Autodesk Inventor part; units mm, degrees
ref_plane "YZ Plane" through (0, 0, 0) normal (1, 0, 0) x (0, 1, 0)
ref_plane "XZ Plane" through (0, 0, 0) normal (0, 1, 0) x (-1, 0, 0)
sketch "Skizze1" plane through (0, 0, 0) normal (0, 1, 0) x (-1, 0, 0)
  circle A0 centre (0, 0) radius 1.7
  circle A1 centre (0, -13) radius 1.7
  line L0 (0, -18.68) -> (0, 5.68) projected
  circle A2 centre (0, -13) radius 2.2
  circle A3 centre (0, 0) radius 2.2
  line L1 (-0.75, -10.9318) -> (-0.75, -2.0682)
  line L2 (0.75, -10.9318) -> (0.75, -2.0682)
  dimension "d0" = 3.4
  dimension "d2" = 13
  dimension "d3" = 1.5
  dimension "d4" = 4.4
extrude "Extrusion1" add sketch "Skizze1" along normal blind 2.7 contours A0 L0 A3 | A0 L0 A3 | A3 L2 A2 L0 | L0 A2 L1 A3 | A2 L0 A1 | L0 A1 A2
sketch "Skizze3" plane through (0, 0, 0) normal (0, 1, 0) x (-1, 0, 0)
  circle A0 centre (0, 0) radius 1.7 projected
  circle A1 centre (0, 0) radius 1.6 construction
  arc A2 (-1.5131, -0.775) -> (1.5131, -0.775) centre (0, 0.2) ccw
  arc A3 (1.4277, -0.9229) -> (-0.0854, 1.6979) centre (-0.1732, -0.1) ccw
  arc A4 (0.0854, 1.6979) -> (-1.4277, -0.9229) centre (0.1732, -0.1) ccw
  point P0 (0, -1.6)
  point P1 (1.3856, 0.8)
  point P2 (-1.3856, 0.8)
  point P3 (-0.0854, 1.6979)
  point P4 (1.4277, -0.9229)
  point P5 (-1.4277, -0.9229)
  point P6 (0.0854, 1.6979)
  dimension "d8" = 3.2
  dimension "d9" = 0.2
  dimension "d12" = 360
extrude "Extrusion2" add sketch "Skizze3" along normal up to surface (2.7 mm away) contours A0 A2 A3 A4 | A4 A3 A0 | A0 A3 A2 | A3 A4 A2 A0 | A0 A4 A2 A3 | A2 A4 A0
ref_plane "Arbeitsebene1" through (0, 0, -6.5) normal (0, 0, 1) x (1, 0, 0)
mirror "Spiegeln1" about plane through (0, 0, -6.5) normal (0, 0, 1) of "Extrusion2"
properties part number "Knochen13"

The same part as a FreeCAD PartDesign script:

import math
import FreeCAD as App
import Part
import Sketcher

V = App.Vector

doc = App.newDocument("Part")
body = doc.addObject("PartDesign::Body", "Body")

# Sketch on XZ plane
sketch1 = body.newObject("Sketcher::SketchObject", "Sketch")
sketch1.AttachmentSupport = (doc.getObject("XZ_Plane"), [""])
sketch1.MapMode = "FlatFace"
sketch1.addGeometry([
    Part.LineSegment(V(0.8, -2.1, 0), V(0.8, -10.9, 0)),  # 0
    Part.ArcOfCircle(Part.Circle(V(0, -13, 0), V(0, 0, 1), 2.2), math.radians(110), math.radians(430)),  # 1
    Part.LineSegment(V(-0.8, -10.9, 0), V(-0.8, -2.1, 0)),  # 2
    Part.ArcOfCircle(Part.Circle(V(0, 0, 0), V(0, 0, 1), 2.2), math.radians(-70), math.radians(250)),  # 3
    Part.Circle(V(0, 0, 0), V(0, 0, 1), 1.7),  # 4
    Part.Circle(V(0, -13, 0), V(0, 0, 1), 1.7),  # 5
], False)
sketch1.addConstraint([
    Sketcher.Constraint("Coincident", 0, 2, 1, 2),
    Sketcher.Constraint("Coincident", 1, 1, 2, 1),
    Sketcher.Constraint("Coincident", 2, 2, 3, 2),
    Sketcher.Constraint("Coincident", 3, 1, 0, 1),
    Sketcher.Constraint("Vertical", 0),
    Sketcher.Constraint("Vertical", 2),
    Sketcher.Constraint("Coincident", 3, 3, -1, 1),
    Sketcher.Constraint("Coincident", 4, 3, -1, 1),
    Sketcher.Constraint("Coincident", 5, 3, 1, 3),
    Sketcher.Constraint("Equal", 1, 3),
    Sketcher.Constraint("Equal", 4, 5),
    Sketcher.Constraint("Symmetric", 0, 2, 1, 1, -2),
    Sketcher.Constraint("Diameter", 4, 3.4),
    Sketcher.Constraint("Radius", 1, 2.2),
    Sketcher.Constraint("DistanceY", 1, 3, -1, 1, 13.0),
    Sketcher.Constraint("DistanceX", 1, 1, 0, 2, 1.5),
])
pad1 = body.newObject("PartDesign::Pad", "Pad")
pad1.Profile = sketch1
pad1.Length = 2.7
pad1.Reversed = True

# Sketch on XZ plane
sketch2 = body.newObject("Sketcher::SketchObject", "Sketch001")
sketch2.AttachmentSupport = (doc.getObject("XZ_Plane"), [""])
sketch2.MapMode = "FlatFace"
sketch2.addGeometry([
    Part.Circle(V(0, 0, 0), V(0, 0, 1), 1.7),
    Part.ArcOfCircle(Part.Circle(V(0.2, -0.1, 0), V(0, 0, 1), 1.8), math.radians(96), math.radians(204)),
    Part.ArcOfCircle(Part.Circle(V(0, 0.2, 0), V(0, 0, 1), 1.8), math.radians(-144), math.radians(-36)),
    Part.ArcOfCircle(Part.Circle(V(-0.2, -0.1, 0), V(0, 0, 1), 1.8), math.radians(-24), math.radians(84)),
], False)
sketch2.addConstraint([
    Sketcher.Constraint("Coincident", 1, 2, 2, 1),
    Sketcher.Constraint("Coincident", 2, 2, 3, 1),
    Sketcher.Constraint("Coincident", 3, 2, 1, 1),
    Sketcher.Constraint("Coincident", 0, 3, -1, 1),
    Sketcher.Constraint("Equal", 1, 2),
    Sketcher.Constraint("Equal", 2, 3),
    Sketcher.Constraint("Symmetric", 1, 3, 3, 3, -2),
    Sketcher.Constraint("PointOnObject", 2, 3, -2),
    Sketcher.Constraint("Diameter", 0, 3.4),
    Sketcher.Constraint("DistanceY", -1, 1, 2, 3, 0.2),
    Sketcher.Constraint("Radius", 1, 1.8),
    Sketcher.Constraint("DistanceY", 1, 3, -1, 1, 0.1),
    Sketcher.Constraint("DistanceX", 1, 2, 2, 2, 2.93),
])
pad2 = body.newObject("PartDesign::Pad", "Pad001")
pad2.Profile = sketch2
pad2.Length = 2.7
pad2.Reversed = True
doc.recompute()

datumplane = body.newObject("PartDesign::Plane", "DatumPlane")
datumplane.AttachmentSupport = (doc.getObject("XY_Plane"), [""])
datumplane.MapMode = "FlatFace"
datumplane.AttachmentOffset = App.Placement(V(0, 0, -6.5), App.Rotation())
mirrored = body.newObject("PartDesign::Mirrored", "Mirrored")
mirrored.Originals = [pad2]
mirrored.MirrorPlane = (datumplane, [""])
body.Tip = mirrored

doc.recompute()
